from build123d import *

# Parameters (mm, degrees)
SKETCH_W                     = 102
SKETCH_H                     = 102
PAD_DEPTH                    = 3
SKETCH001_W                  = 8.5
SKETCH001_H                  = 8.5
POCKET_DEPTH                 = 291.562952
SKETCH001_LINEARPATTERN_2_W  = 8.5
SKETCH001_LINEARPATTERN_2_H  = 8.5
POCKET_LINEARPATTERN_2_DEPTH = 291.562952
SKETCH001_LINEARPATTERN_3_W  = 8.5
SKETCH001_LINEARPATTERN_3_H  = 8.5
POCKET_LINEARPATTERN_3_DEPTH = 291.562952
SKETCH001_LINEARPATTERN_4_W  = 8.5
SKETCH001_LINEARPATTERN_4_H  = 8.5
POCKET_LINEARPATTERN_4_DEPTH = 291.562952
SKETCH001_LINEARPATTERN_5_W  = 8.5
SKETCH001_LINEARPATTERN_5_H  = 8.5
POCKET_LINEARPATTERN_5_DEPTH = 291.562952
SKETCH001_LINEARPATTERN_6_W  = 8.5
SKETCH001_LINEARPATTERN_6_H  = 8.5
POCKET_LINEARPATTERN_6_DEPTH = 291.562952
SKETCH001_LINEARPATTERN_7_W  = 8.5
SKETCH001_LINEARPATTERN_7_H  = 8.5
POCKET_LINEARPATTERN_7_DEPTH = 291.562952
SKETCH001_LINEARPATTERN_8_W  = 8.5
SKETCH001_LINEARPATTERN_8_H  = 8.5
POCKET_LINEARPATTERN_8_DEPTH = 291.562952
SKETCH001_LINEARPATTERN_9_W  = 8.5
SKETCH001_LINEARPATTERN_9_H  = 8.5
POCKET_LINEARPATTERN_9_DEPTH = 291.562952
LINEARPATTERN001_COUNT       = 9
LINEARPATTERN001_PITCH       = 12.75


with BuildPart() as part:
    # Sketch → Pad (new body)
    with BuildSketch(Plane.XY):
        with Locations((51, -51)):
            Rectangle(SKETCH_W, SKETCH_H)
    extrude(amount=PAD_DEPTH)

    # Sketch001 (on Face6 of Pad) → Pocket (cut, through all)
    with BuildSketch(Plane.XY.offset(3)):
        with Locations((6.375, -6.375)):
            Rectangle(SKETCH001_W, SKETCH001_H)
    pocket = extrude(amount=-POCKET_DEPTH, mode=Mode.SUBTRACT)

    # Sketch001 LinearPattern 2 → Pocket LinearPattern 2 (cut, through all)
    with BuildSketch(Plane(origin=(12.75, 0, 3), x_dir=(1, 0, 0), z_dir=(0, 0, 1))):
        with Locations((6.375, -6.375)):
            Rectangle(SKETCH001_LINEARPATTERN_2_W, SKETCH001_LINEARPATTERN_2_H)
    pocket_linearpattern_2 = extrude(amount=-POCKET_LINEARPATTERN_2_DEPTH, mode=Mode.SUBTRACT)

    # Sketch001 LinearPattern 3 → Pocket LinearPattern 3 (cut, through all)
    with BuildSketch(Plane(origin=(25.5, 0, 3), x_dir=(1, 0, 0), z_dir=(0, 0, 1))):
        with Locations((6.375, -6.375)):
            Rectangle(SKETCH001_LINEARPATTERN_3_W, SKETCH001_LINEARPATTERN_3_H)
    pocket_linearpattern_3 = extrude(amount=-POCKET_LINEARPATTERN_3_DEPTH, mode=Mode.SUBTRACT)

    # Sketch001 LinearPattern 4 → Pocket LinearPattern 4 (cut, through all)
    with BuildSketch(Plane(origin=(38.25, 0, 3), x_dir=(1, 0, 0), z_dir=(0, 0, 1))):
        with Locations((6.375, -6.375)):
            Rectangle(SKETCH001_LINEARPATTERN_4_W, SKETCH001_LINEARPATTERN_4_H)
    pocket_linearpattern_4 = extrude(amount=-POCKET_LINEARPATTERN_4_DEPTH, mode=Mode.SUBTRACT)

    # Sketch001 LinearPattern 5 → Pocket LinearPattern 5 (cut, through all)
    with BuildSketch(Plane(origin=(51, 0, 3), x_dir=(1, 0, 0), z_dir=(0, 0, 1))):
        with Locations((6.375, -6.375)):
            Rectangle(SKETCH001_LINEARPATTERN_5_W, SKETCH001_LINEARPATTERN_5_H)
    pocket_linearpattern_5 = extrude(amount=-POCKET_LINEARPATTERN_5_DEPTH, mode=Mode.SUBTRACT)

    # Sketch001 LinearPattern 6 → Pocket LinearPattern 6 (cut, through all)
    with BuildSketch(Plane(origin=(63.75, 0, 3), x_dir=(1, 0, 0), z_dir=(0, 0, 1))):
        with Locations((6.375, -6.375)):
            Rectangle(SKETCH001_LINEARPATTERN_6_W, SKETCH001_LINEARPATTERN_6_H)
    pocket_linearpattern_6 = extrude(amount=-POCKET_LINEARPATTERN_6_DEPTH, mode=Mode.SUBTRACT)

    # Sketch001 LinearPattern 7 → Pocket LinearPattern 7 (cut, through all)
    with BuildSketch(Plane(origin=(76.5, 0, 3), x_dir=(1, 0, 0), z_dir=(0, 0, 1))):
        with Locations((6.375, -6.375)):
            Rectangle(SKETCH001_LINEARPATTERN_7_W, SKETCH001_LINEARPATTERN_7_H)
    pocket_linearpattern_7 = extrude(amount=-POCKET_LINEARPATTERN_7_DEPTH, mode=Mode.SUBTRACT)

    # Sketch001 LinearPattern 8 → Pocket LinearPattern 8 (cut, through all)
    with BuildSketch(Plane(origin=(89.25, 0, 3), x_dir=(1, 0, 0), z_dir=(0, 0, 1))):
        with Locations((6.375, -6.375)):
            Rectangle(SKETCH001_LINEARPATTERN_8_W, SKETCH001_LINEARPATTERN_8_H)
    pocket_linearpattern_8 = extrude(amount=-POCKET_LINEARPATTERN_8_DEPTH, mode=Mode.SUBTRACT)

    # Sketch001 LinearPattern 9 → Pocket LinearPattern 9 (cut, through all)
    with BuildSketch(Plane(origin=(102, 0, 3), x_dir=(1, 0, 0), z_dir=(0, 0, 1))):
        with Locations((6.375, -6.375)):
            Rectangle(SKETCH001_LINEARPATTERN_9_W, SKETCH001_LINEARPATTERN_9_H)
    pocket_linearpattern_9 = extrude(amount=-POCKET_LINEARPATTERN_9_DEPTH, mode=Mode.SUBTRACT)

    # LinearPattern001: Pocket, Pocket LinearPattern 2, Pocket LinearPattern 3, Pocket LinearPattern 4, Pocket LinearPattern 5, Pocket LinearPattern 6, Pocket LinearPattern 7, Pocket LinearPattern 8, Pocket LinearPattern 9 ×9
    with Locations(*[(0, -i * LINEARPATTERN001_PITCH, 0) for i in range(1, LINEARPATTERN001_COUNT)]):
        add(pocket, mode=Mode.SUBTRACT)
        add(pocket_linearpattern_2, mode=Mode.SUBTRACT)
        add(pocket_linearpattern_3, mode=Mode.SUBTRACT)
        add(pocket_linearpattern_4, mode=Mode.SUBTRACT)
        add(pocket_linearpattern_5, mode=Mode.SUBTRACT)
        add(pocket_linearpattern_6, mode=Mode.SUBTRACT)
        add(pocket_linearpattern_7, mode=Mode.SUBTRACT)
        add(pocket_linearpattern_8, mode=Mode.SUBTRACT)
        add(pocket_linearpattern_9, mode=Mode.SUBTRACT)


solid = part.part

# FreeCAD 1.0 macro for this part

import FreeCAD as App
import Part
import Sketcher
Q = App.Units.Quantity

doc = App.newDocument("Part")
params = doc.addObject("Spreadsheet::Sheet", "Params")
for row, (alias, value) in enumerate([
    ("sketch1_width", "102 mm"),
    ("pad1_length", "3 mm"),
    ("sketch2_width", "8.5 mm"),
    ("sketch3_width", "8.5 mm"),
    ("sketch4_width", "8.5 mm"),
    ("sketch5_width", "8.5 mm"),
    ("sketch6_width", "8.5 mm"),
    ("sketch7_width", "8.5 mm"),
    ("sketch8_width", "8.5 mm"),
    ("sketch9_width", "8.5 mm"),
    ("sketch10_width", "8.5 mm"),
    ("linearpattern_pitch", "12.75 mm"),
], start=1):
    params.set(f"A{row}", alias)
    params.set(f"B{row}", "=" + value)
    params.setAlias(f"B{row}", alias)

body = doc.addObject("PartDesign::Body", "Body")

sketch1 = body.newObject("Sketcher::SketchObject", "Sketch")
sketch1.AttachmentSupport = (doc.getObject("XY_Plane"), [""])
sketch1.MapMode = "FlatFace"
sketch1.addGeometry(Part.LineSegment(App.Vector(0, 0, 0), App.Vector(0, -102, 0)), False)
sketch1.addGeometry(Part.LineSegment(App.Vector(0, -102, 0), App.Vector(102, -102, 0)), False)
sketch1.addGeometry(Part.LineSegment(App.Vector(102, -102, 0), App.Vector(102, 0, 0)), False)
sketch1.addGeometry(Part.LineSegment(App.Vector(102, 0, 0), App.Vector(0, 0, 0)), False)
sketch1.addConstraint(Sketcher.Constraint("Coincident", 0, 2, 1, 1))
sketch1.addConstraint(Sketcher.Constraint("Coincident", 1, 2, 2, 1))
sketch1.addConstraint(Sketcher.Constraint("Coincident", 2, 2, 3, 1))
sketch1.addConstraint(Sketcher.Constraint("Coincident", 3, 2, 0, 1))
sketch1.addConstraint(Sketcher.Constraint("Vertical", 0))
sketch1.addConstraint(Sketcher.Constraint("Horizontal", 1))
sketch1.addConstraint(Sketcher.Constraint("Vertical", 2))
sketch1.addConstraint(Sketcher.Constraint("Horizontal", 3))
sketch1.addConstraint(Sketcher.Constraint("Coincident", 3, 2, -1, 1))
sketch1.addConstraint(Sketcher.Constraint("Equal", 3, 0))
sketch1.addConstraint(Sketcher.Constraint("DistanceX", 1, 1, 1, 2, Q("102 mm")))
sketch1.setExpression("Constraints[10]", "Params.sketch1_width")
pad1 = body.newObject("PartDesign::Pad", "Pad")
pad1.Profile = sketch1
pad1.setExpression("Length", "Params.pad1_length")

sketch2 = body.newObject("Sketcher::SketchObject", "Sketch001")
sketch2.AttachmentSupport = (doc.getObject("XY_Plane"), [""])
sketch2.MapMode = "FlatFace"
sketch2.AttachmentOffset = App.Placement(App.Vector(0, 0, 3), App.Rotation())
sketch2.addGeometry(Part.LineSegment(App.Vector(2, -2, 0), App.Vector(2, -11, 0)), False)
sketch2.addGeometry(Part.LineSegment(App.Vector(2, -11, 0), App.Vector(11, -11, 0)), False)
sketch2.addGeometry(Part.LineSegment(App.Vector(11, -11, 0), App.Vector(11, -2, 0)), False)
sketch2.addGeometry(Part.LineSegment(App.Vector(11, -2, 0), App.Vector(2, -2, 0)), False)
sketch2.addConstraint(Sketcher.Constraint("Coincident", 0, 2, 1, 1))
sketch2.addConstraint(Sketcher.Constraint("Coincident", 1, 2, 2, 1))
sketch2.addConstraint(Sketcher.Constraint("Coincident", 2, 2, 3, 1))
sketch2.addConstraint(Sketcher.Constraint("Coincident", 3, 2, 0, 1))
sketch2.addConstraint(Sketcher.Constraint("Vertical", 0))
sketch2.addConstraint(Sketcher.Constraint("Horizontal", 1))
sketch2.addConstraint(Sketcher.Constraint("Vertical", 2))
sketch2.addConstraint(Sketcher.Constraint("Horizontal", 3))
sketch2.addConstraint(Sketcher.Constraint("Equal", 3, 0))
sketch2.addConstraint(Sketcher.Constraint("DistanceX", 1, 1, 1, 2, Q("8.5 mm")))
sketch2.addConstraint(Sketcher.Constraint("DistanceX", -1, 1, 0, 2, Q("2.125 mm")))
sketch2.addConstraint(Sketcher.Constraint("DistanceY", 0, 2, -1, 1, Q("10.625 mm")))
sketch2.setExpression("Constraints[9]", "Params.sketch2_width")
pocket1 = body.newObject("PartDesign::Pocket", "Pocket")
pocket1.Profile = sketch2
pocket1.Type = "ThroughAll"

sketch3 = body.newObject("Sketcher::SketchObject", "Sketch002")
sketch3.AttachmentSupport = (doc.getObject("XY_Plane"), [""])
sketch3.MapMode = "FlatFace"
sketch3.AttachmentOffset = App.Placement(App.Vector(0, 0, 3), App.Rotation())
sketch3.addGeometry(Part.LineSegment(App.Vector(15, -2, 0), App.Vector(15, -11, 0)), False)
sketch3.addGeometry(Part.LineSegment(App.Vector(15, -11, 0), App.Vector(23, -11, 0)), False)
sketch3.addGeometry(Part.LineSegment(App.Vector(23, -11, 0), App.Vector(23, -2, 0)), False)
sketch3.addGeometry(Part.LineSegment(App.Vector(23, -2, 0), App.Vector(15, -2, 0)), False)
sketch3.addConstraint(Sketcher.Constraint("Coincident", 0, 2, 1, 1))
sketch3.addConstraint(Sketcher.Constraint("Coincident", 1, 2, 2, 1))
sketch3.addConstraint(Sketcher.Constraint("Coincident", 2, 2, 3, 1))
sketch3.addConstraint(Sketcher.Constraint("Coincident", 3, 2, 0, 1))
sketch3.addConstraint(Sketcher.Constraint("Vertical", 0))
sketch3.addConstraint(Sketcher.Constraint("Horizontal", 1))
sketch3.addConstraint(Sketcher.Constraint("Vertical", 2))
sketch3.addConstraint(Sketcher.Constraint("Horizontal", 3))
sketch3.addConstraint(Sketcher.Constraint("Equal", 3, 0))
sketch3.addConstraint(Sketcher.Constraint("DistanceX", 1, 1, 1, 2, Q("8.5 mm")))
sketch3.addConstraint(Sketcher.Constraint("DistanceX", -1, 1, 0, 2, Q("14.875 mm")))
sketch3.addConstraint(Sketcher.Constraint("DistanceY", 0, 2, -1, 1, Q("10.625 mm")))
sketch3.setExpression("Constraints[9]", "Params.sketch3_width")
pocket2 = body.newObject("PartDesign::Pocket", "Pocket001")
pocket2.Profile = sketch3
pocket2.Type = "ThroughAll"

sketch4 = body.newObject("Sketcher::SketchObject", "Sketch003")
sketch4.AttachmentSupport = (doc.getObject("XY_Plane"), [""])
sketch4.MapMode = "FlatFace"
sketch4.AttachmentOffset = App.Placement(App.Vector(0, 0, 3), App.Rotation())
sketch4.addGeometry(Part.LineSegment(App.Vector(28, -2, 0), App.Vector(28, -11, 0)), False)
sketch4.addGeometry(Part.LineSegment(App.Vector(28, -11, 0), App.Vector(36, -11, 0)), False)
sketch4.addGeometry(Part.LineSegment(App.Vector(36, -11, 0), App.Vector(36, -2, 0)), False)
sketch4.addGeometry(Part.LineSegment(App.Vector(36, -2, 0), App.Vector(28, -2, 0)), False)
sketch4.addConstraint(Sketcher.Constraint("Coincident", 0, 2, 1, 1))
sketch4.addConstraint(Sketcher.Constraint("Coincident", 1, 2, 2, 1))
sketch4.addConstraint(Sketcher.Constraint("Coincident", 2, 2, 3, 1))
sketch4.addConstraint(Sketcher.Constraint("Coincident", 3, 2, 0, 1))
sketch4.addConstraint(Sketcher.Constraint("Vertical", 0))
sketch4.addConstraint(Sketcher.Constraint("Horizontal", 1))
sketch4.addConstraint(Sketcher.Constraint("Vertical", 2))
sketch4.addConstraint(Sketcher.Constraint("Horizontal", 3))
sketch4.addConstraint(Sketcher.Constraint("Equal", 3, 0))
sketch4.addConstraint(Sketcher.Constraint("DistanceX", 1, 1, 1, 2, Q("8.5 mm")))
sketch4.addConstraint(Sketcher.Constraint("DistanceX", -1, 1, 0, 2, Q("27.625 mm")))
sketch4.addConstraint(Sketcher.Constraint("DistanceY", 0, 2, -1, 1, Q("10.625 mm")))
sketch4.setExpression("Constraints[9]", "Params.sketch4_width")
pocket3 = body.newObject("PartDesign::Pocket", "Pocket002")
pocket3.Profile = sketch4
pocket3.Type = "ThroughAll"

sketch5 = body.newObject("Sketcher::SketchObject", "Sketch004")
sketch5.AttachmentSupport = (doc.getObject("XY_Plane"), [""])
sketch5.MapMode = "FlatFace"
sketch5.AttachmentOffset = App.Placement(App.Vector(0, 0, 3), App.Rotation())
sketch5.addGeometry(Part.LineSegment(App.Vector(40, -2, 0), App.Vector(40, -11, 0)), False)
sketch5.addGeometry(Part.LineSegment(App.Vector(40, -11, 0), App.Vector(49, -11, 0)), False)
sketch5.addGeometry(Part.LineSegment(App.Vector(49, -11, 0), App.Vector(49, -2, 0)), False)
sketch5.addGeometry(Part.LineSegment(App.Vector(49, -2, 0), App.Vector(40, -2, 0)), False)
sketch5.addConstraint(Sketcher.Constraint("Coincident", 0, 2, 1, 1))
sketch5.addConstraint(Sketcher.Constraint("Coincident", 1, 2, 2, 1))
sketch5.addConstraint(Sketcher.Constraint("Coincident", 2, 2, 3, 1))
sketch5.addConstraint(Sketcher.Constraint("Coincident", 3, 2, 0, 1))
sketch5.addConstraint(Sketcher.Constraint("Vertical", 0))
sketch5.addConstraint(Sketcher.Constraint("Horizontal", 1))
sketch5.addConstraint(Sketcher.Constraint("Vertical", 2))
sketch5.addConstraint(Sketcher.Constraint("Horizontal", 3))
sketch5.addConstraint(Sketcher.Constraint("Equal", 3, 0))
sketch5.addConstraint(Sketcher.Constraint("DistanceX", 1, 1, 1, 2, Q("8.5 mm")))
sketch5.addConstraint(Sketcher.Constraint("DistanceX", -1, 1, 0, 2, Q("40.375 mm")))
sketch5.addConstraint(Sketcher.Constraint("DistanceY", 0, 2, -1, 1, Q("10.625 mm")))
sketch5.setExpression("Constraints[9]", "Params.sketch5_width")
pocket4 = body.newObject("PartDesign::Pocket", "Pocket003")
pocket4.Profile = sketch5
pocket4.Type = "ThroughAll"

sketch6 = body.newObject("Sketcher::SketchObject", "Sketch005")
sketch6.AttachmentSupport = (doc.getObject("XY_Plane"), [""])
sketch6.MapMode = "FlatFace"
sketch6.AttachmentOffset = App.Placement(App.Vector(0, 0, 3), App.Rotation())
sketch6.addGeometry(Part.LineSegment(App.Vector(53, -2, 0), App.Vector(53, -11, 0)), False)
sketch6.addGeometry(Part.LineSegment(App.Vector(53, -11, 0), App.Vector(62, -11, 0)), False)
sketch6.addGeometry(Part.LineSegment(App.Vector(62, -11, 0), App.Vector(62, -2, 0)), False)
sketch6.addGeometry(Part.LineSegment(App.Vector(62, -2, 0), App.Vector(53, -2, 0)), False)
sketch6.addConstraint(Sketcher.Constraint("Coincident", 0, 2, 1, 1))
sketch6.addConstraint(Sketcher.Constraint("Coincident", 1, 2, 2, 1))
sketch6.addConstraint(Sketcher.Constraint("Coincident", 2, 2, 3, 1))
sketch6.addConstraint(Sketcher.Constraint("Coincident", 3, 2, 0, 1))
sketch6.addConstraint(Sketcher.Constraint("Vertical", 0))
sketch6.addConstraint(Sketcher.Constraint("Horizontal", 1))
sketch6.addConstraint(Sketcher.Constraint("Vertical", 2))
sketch6.addConstraint(Sketcher.Constraint("Horizontal", 3))
sketch6.addConstraint(Sketcher.Constraint("Equal", 3, 0))
sketch6.addConstraint(Sketcher.Constraint("DistanceX", 1, 1, 1, 2, Q("8.5 mm")))
sketch6.addConstraint(Sketcher.Constraint("DistanceX", -1, 1, 0, 2, Q("53.125 mm")))
sketch6.addConstraint(Sketcher.Constraint("DistanceY", 0, 2, -1, 1, Q("10.625 mm")))
sketch6.setExpression("Constraints[9]", "Params.sketch6_width")
pocket5 = body.newObject("PartDesign::Pocket", "Pocket004")
pocket5.Profile = sketch6
pocket5.Type = "ThroughAll"

sketch7 = body.newObject("Sketcher::SketchObject", "Sketch006")
sketch7.AttachmentSupport = (doc.getObject("XY_Plane"), [""])
sketch7.MapMode = "FlatFace"
sketch7.AttachmentOffset = App.Placement(App.Vector(0, 0, 3), App.Rotation())
sketch7.addGeometry(Part.LineSegment(App.Vector(66, -2, 0), App.Vector(66, -11, 0)), False)
sketch7.addGeometry(Part.LineSegment(App.Vector(66, -11, 0), App.Vector(74, -11, 0)), False)
sketch7.addGeometry(Part.LineSegment(App.Vector(74, -11, 0), App.Vector(74, -2, 0)), False)
sketch7.addGeometry(Part.LineSegment(App.Vector(74, -2, 0), App.Vector(66, -2, 0)), False)
sketch7.addConstraint(Sketcher.Constraint("Coincident", 0, 2, 1, 1))
sketch7.addConstraint(Sketcher.Constraint("Coincident", 1, 2, 2, 1))
sketch7.addConstraint(Sketcher.Constraint("Coincident", 2, 2, 3, 1))
sketch7.addConstraint(Sketcher.Constraint("Coincident", 3, 2, 0, 1))
sketch7.addConstraint(Sketcher.Constraint("Vertical", 0))
sketch7.addConstraint(Sketcher.Constraint("Horizontal", 1))
sketch7.addConstraint(Sketcher.Constraint("Vertical", 2))
sketch7.addConstraint(Sketcher.Constraint("Horizontal", 3))
sketch7.addConstraint(Sketcher.Constraint("Equal", 3, 0))
sketch7.addConstraint(Sketcher.Constraint("DistanceX", 1, 1, 1, 2, Q("8.5 mm")))
sketch7.addConstraint(Sketcher.Constraint("DistanceX", -1, 1, 0, 2, Q("65.875 mm")))
sketch7.addConstraint(Sketcher.Constraint("DistanceY", 0, 2, -1, 1, Q("10.625 mm")))
sketch7.setExpression("Constraints[9]", "Params.sketch7_width")
pocket6 = body.newObject("PartDesign::Pocket", "Pocket005")
pocket6.Profile = sketch7
pocket6.Type = "ThroughAll"

sketch8 = body.newObject("Sketcher::SketchObject", "Sketch007")
sketch8.AttachmentSupport = (doc.getObject("XY_Plane"), [""])
sketch8.MapMode = "FlatFace"
sketch8.AttachmentOffset = App.Placement(App.Vector(0, 0, 3), App.Rotation())
sketch8.addGeometry(Part.LineSegment(App.Vector(79, -2, 0), App.Vector(79, -11, 0)), False)
sketch8.addGeometry(Part.LineSegment(App.Vector(79, -11, 0), App.Vector(87, -11, 0)), False)
sketch8.addGeometry(Part.LineSegment(App.Vector(87, -11, 0), App.Vector(87, -2, 0)), False)
sketch8.addGeometry(Part.LineSegment(App.Vector(87, -2, 0), App.Vector(79, -2, 0)), False)
sketch8.addConstraint(Sketcher.Constraint("Coincident", 0, 2, 1, 1))
sketch8.addConstraint(Sketcher.Constraint("Coincident", 1, 2, 2, 1))
sketch8.addConstraint(Sketcher.Constraint("Coincident", 2, 2, 3, 1))
sketch8.addConstraint(Sketcher.Constraint("Coincident", 3, 2, 0, 1))
sketch8.addConstraint(Sketcher.Constraint("Vertical", 0))
sketch8.addConstraint(Sketcher.Constraint("Horizontal", 1))
sketch8.addConstraint(Sketcher.Constraint("Vertical", 2))
sketch8.addConstraint(Sketcher.Constraint("Horizontal", 3))
sketch8.addConstraint(Sketcher.Constraint("Equal", 3, 0))
sketch8.addConstraint(Sketcher.Constraint("DistanceX", 1, 1, 1, 2, Q("8.5 mm")))
sketch8.addConstraint(Sketcher.Constraint("DistanceX", -1, 1, 0, 2, Q("78.625 mm")))
sketch8.addConstraint(Sketcher.Constraint("DistanceY", 0, 2, -1, 1, Q("10.625 mm")))
sketch8.setExpression("Constraints[9]", "Params.sketch8_width")
pocket7 = body.newObject("PartDesign::Pocket", "Pocket006")
pocket7.Profile = sketch8
pocket7.Type = "ThroughAll"

sketch9 = body.newObject("Sketcher::SketchObject", "Sketch008")
sketch9.AttachmentSupport = (doc.getObject("XY_Plane"), [""])
sketch9.MapMode = "FlatFace"
sketch9.AttachmentOffset = App.Placement(App.Vector(0, 0, 3), App.Rotation())
sketch9.addGeometry(Part.LineSegment(App.Vector(91, -2, 0), App.Vector(91, -11, 0)), False)
sketch9.addGeometry(Part.LineSegment(App.Vector(91, -11, 0), App.Vector(100, -11, 0)), False)
sketch9.addGeometry(Part.LineSegment(App.Vector(100, -11, 0), App.Vector(100, -2, 0)), False)
sketch9.addGeometry(Part.LineSegment(App.Vector(100, -2, 0), App.Vector(91, -2, 0)), False)
sketch9.addConstraint(Sketcher.Constraint("Coincident", 0, 2, 1, 1))
sketch9.addConstraint(Sketcher.Constraint("Coincident", 1, 2, 2, 1))
sketch9.addConstraint(Sketcher.Constraint("Coincident", 2, 2, 3, 1))
sketch9.addConstraint(Sketcher.Constraint("Coincident", 3, 2, 0, 1))
sketch9.addConstraint(Sketcher.Constraint("Vertical", 0))
sketch9.addConstraint(Sketcher.Constraint("Horizontal", 1))
sketch9.addConstraint(Sketcher.Constraint("Vertical", 2))
sketch9.addConstraint(Sketcher.Constraint("Horizontal", 3))
sketch9.addConstraint(Sketcher.Constraint("Equal", 3, 0))
sketch9.addConstraint(Sketcher.Constraint("DistanceX", 1, 1, 1, 2, Q("8.5 mm")))
sketch9.addConstraint(Sketcher.Constraint("DistanceX", -1, 1, 0, 2, Q("91.375 mm")))
sketch9.addConstraint(Sketcher.Constraint("DistanceY", 0, 2, -1, 1, Q("10.625 mm")))
sketch9.setExpression("Constraints[9]", "Params.sketch9_width")
pocket8 = body.newObject("PartDesign::Pocket", "Pocket007")
pocket8.Profile = sketch9
pocket8.Type = "ThroughAll"

sketch10 = body.newObject("Sketcher::SketchObject", "Sketch009")
sketch10.AttachmentSupport = (doc.getObject("XY_Plane"), [""])
sketch10.MapMode = "FlatFace"
sketch10.AttachmentOffset = App.Placement(App.Vector(0, 0, 3), App.Rotation())
sketch10.addGeometry(Part.LineSegment(App.Vector(104, -2, 0), App.Vector(104, -11, 0)), False)
sketch10.addGeometry(Part.LineSegment(App.Vector(104, -11, 0), App.Vector(113, -11, 0)), False)
sketch10.addGeometry(Part.LineSegment(App.Vector(113, -11, 0), App.Vector(113, -2, 0)), False)
sketch10.addGeometry(Part.LineSegment(App.Vector(113, -2, 0), App.Vector(104, -2, 0)), False)
sketch10.addConstraint(Sketcher.Constraint("Coincident", 0, 2, 1, 1))
sketch10.addConstraint(Sketcher.Constraint("Coincident", 1, 2, 2, 1))
sketch10.addConstraint(Sketcher.Constraint("Coincident", 2, 2, 3, 1))
sketch10.addConstraint(Sketcher.Constraint("Coincident", 3, 2, 0, 1))
sketch10.addConstraint(Sketcher.Constraint("Vertical", 0))
sketch10.addConstraint(Sketcher.Constraint("Horizontal", 1))
sketch10.addConstraint(Sketcher.Constraint("Vertical", 2))
sketch10.addConstraint(Sketcher.Constraint("Horizontal", 3))
sketch10.addConstraint(Sketcher.Constraint("Equal", 3, 0))
sketch10.addConstraint(Sketcher.Constraint("DistanceX", 1, 1, 1, 2, Q("8.5 mm")))
sketch10.addConstraint(Sketcher.Constraint("DistanceX", -1, 1, 0, 2, Q("104.125 mm")))
sketch10.addConstraint(Sketcher.Constraint("DistanceY", 0, 2, -1, 1, Q("10.625 mm")))
sketch10.setExpression("Constraints[9]", "Params.sketch10_width")
pocket9 = body.newObject("PartDesign::Pocket", "Pocket008")
pocket9.Profile = sketch10
pocket9.Type = "ThroughAll"
doc.recompute()

linearpattern = body.newObject("PartDesign::LinearPattern", "LinearPattern")
linearpattern.Originals = [pocket1, pocket2, pocket3, pocket4, pocket5, pocket6, pocket7, pocket8, pocket9]
linearpattern.Direction = (doc.getObject("Y_Axis"), [""])
linearpattern.Mode = "offset"
linearpattern.setExpression("Offset", "Params.linearpattern_pitch")
linearpattern.Occurrences = 9
linearpattern.Reversed = True
body.Tip = linearpattern

doc.recompute()
